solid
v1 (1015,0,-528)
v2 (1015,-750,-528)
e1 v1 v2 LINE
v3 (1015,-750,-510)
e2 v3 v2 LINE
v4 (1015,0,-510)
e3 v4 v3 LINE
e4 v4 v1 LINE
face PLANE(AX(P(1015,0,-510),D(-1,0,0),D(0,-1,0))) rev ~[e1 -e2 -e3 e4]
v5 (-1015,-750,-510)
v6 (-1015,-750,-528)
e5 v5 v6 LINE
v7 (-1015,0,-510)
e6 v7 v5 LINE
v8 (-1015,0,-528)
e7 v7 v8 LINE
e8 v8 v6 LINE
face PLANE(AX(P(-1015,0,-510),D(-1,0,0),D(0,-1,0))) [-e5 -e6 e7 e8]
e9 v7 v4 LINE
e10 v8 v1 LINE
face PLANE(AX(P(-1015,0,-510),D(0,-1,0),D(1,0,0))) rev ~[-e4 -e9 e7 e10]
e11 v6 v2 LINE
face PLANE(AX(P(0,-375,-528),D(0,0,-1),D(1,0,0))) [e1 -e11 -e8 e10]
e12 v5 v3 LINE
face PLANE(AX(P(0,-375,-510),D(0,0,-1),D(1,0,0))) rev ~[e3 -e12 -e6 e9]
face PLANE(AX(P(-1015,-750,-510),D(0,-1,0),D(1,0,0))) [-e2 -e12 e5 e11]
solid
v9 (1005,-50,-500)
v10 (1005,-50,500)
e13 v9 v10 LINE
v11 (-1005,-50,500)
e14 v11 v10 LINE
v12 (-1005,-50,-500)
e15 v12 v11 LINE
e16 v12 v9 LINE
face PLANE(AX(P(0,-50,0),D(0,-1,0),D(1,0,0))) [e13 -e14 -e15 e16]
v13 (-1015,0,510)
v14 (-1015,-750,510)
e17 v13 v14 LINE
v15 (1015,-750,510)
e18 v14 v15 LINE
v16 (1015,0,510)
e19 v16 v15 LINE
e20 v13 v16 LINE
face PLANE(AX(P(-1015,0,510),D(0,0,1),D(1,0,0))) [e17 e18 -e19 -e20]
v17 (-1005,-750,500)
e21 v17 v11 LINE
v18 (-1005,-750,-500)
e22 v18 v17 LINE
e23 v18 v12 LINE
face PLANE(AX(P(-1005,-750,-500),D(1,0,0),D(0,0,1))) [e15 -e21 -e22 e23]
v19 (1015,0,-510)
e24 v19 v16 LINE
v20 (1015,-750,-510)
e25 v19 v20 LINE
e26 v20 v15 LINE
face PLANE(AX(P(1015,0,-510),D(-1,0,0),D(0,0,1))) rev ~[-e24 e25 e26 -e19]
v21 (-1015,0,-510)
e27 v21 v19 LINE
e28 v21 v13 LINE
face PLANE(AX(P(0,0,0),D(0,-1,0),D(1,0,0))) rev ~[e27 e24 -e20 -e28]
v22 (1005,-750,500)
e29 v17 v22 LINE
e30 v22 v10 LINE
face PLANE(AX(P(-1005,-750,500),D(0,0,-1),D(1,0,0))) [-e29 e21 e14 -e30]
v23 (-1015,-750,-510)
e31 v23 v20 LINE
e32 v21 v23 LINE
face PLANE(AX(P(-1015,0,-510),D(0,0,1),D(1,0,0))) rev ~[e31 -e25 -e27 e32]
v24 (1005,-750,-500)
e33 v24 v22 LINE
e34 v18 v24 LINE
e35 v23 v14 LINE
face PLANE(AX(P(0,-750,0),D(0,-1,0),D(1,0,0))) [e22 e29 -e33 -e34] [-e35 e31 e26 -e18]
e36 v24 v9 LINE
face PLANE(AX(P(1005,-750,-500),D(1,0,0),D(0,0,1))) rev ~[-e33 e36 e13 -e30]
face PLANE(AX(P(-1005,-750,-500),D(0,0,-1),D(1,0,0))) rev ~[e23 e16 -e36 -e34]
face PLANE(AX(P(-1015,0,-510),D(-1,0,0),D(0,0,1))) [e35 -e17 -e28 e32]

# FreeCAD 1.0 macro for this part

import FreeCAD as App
import Part
import Sketcher

V = App.Vector

doc = App.newDocument("Part")
params = doc.addObject("Spreadsheet::Sheet", "Params")
for row, (alias, value) in enumerate([
    ("sketch1_width", "2030 mm"),
    ("sketch1_height", "1020 mm"),
    ("pad1_length", "750 mm"),
    ("sketch2_width", "2010 mm"),
    ("sketch2_height", "1000 mm"),
    ("pocket1_length", "700 mm"),
    ("sketch3_width", "2030 mm"),
    ("sketch3_height", "750 mm"),
    ("pad2_length", "18 mm"),
], start=1):
    params.set(f"A{row}", alias)
    params.set(f"B{row}", "=" + value)
    params.setAlias(f"B{row}", alias)

body = doc.addObject("PartDesign::Body", "Body")

# Sketch on XZ plane
sketch1 = body.newObject("Sketcher::SketchObject", "Sketch")
sketch1.AttachmentSupport = (doc.getObject("XZ_Plane"), [""])
sketch1.MapMode = "FlatFace"
sketch1.addGeometry([
    Part.LineSegment(V(-1015, 510, 0), V(-1015, -510, 0)),
    Part.LineSegment(V(-1015, -510, 0), V(1015, -510, 0)),
    Part.LineSegment(V(1015, -510, 0), V(1015, 510, 0)),
    Part.LineSegment(V(1015, 510, 0), V(-1015, 510, 0)),
], False)
sketch1.addConstraint([
    Sketcher.Constraint("Coincident", 0, 2, 1, 1),
    Sketcher.Constraint("Coincident", 1, 2, 2, 1),
    Sketcher.Constraint("Coincident", 2, 2, 3, 1),
    Sketcher.Constraint("Coincident", 3, 2, 0, 1),
    Sketcher.Constraint("Vertical", 0),
    Sketcher.Constraint("Horizontal", 1),
    Sketcher.Constraint("Vertical", 2),
    Sketcher.Constraint("Horizontal", 3),
    Sketcher.Constraint("Symmetric", 0, 2, 2, 2, -1, 1),
    Sketcher.Constraint("DistanceX", 1, 1, 1, 2, 2030.0),
    Sketcher.Constraint("DistanceY", 0, 2, 0, 1, 1020.0),
])
sketch1.setExpression("Constraints[9]", "Params.sketch1_width")
sketch1.setExpression("Constraints[10]", "Params.sketch1_height")
pad1 = body.newObject("PartDesign::Pad", "Pad")
pad1.Profile = sketch1
pad1.setExpression("Length", "Params.pad1_length")

# Sketch on XZ plane
sketch2 = body.newObject("Sketcher::SketchObject", "Sketch001")
sketch2.AttachmentSupport = (doc.getObject("XZ_Plane"), [""])
sketch2.MapMode = "FlatFace"
sketch2.AttachmentOffset = App.Placement(V(0, 0, 750), App.Rotation())
sketch2.addGeometry([
    Part.LineSegment(V(-1005, 500, 0), V(-1005, -500, 0)),
    Part.LineSegment(V(-1005, -500, 0), V(1005, -500, 0)),
    Part.LineSegment(V(1005, -500, 0), V(1005, 500, 0)),
    Part.LineSegment(V(1005, 500, 0), V(-1005, 500, 0)),
], False)
sketch2.addConstraint([
    Sketcher.Constraint("Coincident", 0, 2, 1, 1),
    Sketcher.Constraint("Coincident", 1, 2, 2, 1),
    Sketcher.Constraint("Coincident", 2, 2, 3, 1),
    Sketcher.Constraint("Coincident", 3, 2, 0, 1),
    Sketcher.Constraint("Vertical", 0),
    Sketcher.Constraint("Horizontal", 1),
    Sketcher.Constraint("Vertical", 2),
    Sketcher.Constraint("Horizontal", 3),
    Sketcher.Constraint("Symmetric", 0, 2, 2, 2, -1, 1),
    Sketcher.Constraint("DistanceX", 1, 1, 1, 2, 2010.0),
    Sketcher.Constraint("DistanceY", 0, 2, 0, 1, 1000.0),
])
sketch2.setExpression("Constraints[9]", "Params.sketch2_width")
sketch2.setExpression("Constraints[10]", "Params.sketch2_height")
pocket1 = body.newObject("PartDesign::Pocket", "Pocket")
pocket1.Profile = sketch2
pocket1.setExpression("Length", "Params.pocket1_length")
body2 = doc.addObject("PartDesign::Body", "Body001")

# Sketch on XY plane
sketch3 = body2.newObject("Sketcher::SketchObject", "Sketch002")
sketch3.AttachmentSupport = (doc.getObject("XY_Plane001"), [""])
sketch3.MapMode = "FlatFace"
sketch3.AttachmentOffset = App.Placement(V(0, 0, -510), App.Rotation())
sketch3.addGeometry([
    Part.LineSegment(V(-1015, -750, 0), V(-1015, 0, 0)),
    Part.LineSegment(V(-1015, 0, 0), V(1015, 0, 0)),
    Part.LineSegment(V(1015, 0, 0), V(1015, -750, 0)),
    Part.LineSegment(V(1015, -750, 0), V(-1015, -750, 0)),
], False)
sketch3.addConstraint([
    Sketcher.Constraint("Coincident", 0, 2, 1, 1),
    Sketcher.Constraint("Coincident", 1, 2, 2, 1),
    Sketcher.Constraint("Coincident", 2, 2, 3, 1),
    Sketcher.Constraint("Coincident", 3, 2, 0, 1),
    Sketcher.Constraint("Vertical", 0),
    Sketcher.Constraint("Horizontal", 1),
    Sketcher.Constraint("Vertical", 2),
    Sketcher.Constraint("Horizontal", 3),
    Sketcher.Constraint("Symmetric", 0, 2, 1, 2, -1, 1),
    Sketcher.Constraint("DistanceX", 1, 1, 1, 2, 2030.0),
    Sketcher.Constraint("DistanceY", 0, 1, 0, 2, 750.0),
])
sketch3.setExpression("Constraints[9]", "Params.sketch3_width")
sketch3.setExpression("Constraints[10]", "Params.sketch3_height")
pad2 = body2.newObject("PartDesign::Pad", "Pad001")
pad2.Profile = sketch3
pad2.setExpression("Length", "Params.pad2_length")
pad2.Reversed = True

doc.recompute()
